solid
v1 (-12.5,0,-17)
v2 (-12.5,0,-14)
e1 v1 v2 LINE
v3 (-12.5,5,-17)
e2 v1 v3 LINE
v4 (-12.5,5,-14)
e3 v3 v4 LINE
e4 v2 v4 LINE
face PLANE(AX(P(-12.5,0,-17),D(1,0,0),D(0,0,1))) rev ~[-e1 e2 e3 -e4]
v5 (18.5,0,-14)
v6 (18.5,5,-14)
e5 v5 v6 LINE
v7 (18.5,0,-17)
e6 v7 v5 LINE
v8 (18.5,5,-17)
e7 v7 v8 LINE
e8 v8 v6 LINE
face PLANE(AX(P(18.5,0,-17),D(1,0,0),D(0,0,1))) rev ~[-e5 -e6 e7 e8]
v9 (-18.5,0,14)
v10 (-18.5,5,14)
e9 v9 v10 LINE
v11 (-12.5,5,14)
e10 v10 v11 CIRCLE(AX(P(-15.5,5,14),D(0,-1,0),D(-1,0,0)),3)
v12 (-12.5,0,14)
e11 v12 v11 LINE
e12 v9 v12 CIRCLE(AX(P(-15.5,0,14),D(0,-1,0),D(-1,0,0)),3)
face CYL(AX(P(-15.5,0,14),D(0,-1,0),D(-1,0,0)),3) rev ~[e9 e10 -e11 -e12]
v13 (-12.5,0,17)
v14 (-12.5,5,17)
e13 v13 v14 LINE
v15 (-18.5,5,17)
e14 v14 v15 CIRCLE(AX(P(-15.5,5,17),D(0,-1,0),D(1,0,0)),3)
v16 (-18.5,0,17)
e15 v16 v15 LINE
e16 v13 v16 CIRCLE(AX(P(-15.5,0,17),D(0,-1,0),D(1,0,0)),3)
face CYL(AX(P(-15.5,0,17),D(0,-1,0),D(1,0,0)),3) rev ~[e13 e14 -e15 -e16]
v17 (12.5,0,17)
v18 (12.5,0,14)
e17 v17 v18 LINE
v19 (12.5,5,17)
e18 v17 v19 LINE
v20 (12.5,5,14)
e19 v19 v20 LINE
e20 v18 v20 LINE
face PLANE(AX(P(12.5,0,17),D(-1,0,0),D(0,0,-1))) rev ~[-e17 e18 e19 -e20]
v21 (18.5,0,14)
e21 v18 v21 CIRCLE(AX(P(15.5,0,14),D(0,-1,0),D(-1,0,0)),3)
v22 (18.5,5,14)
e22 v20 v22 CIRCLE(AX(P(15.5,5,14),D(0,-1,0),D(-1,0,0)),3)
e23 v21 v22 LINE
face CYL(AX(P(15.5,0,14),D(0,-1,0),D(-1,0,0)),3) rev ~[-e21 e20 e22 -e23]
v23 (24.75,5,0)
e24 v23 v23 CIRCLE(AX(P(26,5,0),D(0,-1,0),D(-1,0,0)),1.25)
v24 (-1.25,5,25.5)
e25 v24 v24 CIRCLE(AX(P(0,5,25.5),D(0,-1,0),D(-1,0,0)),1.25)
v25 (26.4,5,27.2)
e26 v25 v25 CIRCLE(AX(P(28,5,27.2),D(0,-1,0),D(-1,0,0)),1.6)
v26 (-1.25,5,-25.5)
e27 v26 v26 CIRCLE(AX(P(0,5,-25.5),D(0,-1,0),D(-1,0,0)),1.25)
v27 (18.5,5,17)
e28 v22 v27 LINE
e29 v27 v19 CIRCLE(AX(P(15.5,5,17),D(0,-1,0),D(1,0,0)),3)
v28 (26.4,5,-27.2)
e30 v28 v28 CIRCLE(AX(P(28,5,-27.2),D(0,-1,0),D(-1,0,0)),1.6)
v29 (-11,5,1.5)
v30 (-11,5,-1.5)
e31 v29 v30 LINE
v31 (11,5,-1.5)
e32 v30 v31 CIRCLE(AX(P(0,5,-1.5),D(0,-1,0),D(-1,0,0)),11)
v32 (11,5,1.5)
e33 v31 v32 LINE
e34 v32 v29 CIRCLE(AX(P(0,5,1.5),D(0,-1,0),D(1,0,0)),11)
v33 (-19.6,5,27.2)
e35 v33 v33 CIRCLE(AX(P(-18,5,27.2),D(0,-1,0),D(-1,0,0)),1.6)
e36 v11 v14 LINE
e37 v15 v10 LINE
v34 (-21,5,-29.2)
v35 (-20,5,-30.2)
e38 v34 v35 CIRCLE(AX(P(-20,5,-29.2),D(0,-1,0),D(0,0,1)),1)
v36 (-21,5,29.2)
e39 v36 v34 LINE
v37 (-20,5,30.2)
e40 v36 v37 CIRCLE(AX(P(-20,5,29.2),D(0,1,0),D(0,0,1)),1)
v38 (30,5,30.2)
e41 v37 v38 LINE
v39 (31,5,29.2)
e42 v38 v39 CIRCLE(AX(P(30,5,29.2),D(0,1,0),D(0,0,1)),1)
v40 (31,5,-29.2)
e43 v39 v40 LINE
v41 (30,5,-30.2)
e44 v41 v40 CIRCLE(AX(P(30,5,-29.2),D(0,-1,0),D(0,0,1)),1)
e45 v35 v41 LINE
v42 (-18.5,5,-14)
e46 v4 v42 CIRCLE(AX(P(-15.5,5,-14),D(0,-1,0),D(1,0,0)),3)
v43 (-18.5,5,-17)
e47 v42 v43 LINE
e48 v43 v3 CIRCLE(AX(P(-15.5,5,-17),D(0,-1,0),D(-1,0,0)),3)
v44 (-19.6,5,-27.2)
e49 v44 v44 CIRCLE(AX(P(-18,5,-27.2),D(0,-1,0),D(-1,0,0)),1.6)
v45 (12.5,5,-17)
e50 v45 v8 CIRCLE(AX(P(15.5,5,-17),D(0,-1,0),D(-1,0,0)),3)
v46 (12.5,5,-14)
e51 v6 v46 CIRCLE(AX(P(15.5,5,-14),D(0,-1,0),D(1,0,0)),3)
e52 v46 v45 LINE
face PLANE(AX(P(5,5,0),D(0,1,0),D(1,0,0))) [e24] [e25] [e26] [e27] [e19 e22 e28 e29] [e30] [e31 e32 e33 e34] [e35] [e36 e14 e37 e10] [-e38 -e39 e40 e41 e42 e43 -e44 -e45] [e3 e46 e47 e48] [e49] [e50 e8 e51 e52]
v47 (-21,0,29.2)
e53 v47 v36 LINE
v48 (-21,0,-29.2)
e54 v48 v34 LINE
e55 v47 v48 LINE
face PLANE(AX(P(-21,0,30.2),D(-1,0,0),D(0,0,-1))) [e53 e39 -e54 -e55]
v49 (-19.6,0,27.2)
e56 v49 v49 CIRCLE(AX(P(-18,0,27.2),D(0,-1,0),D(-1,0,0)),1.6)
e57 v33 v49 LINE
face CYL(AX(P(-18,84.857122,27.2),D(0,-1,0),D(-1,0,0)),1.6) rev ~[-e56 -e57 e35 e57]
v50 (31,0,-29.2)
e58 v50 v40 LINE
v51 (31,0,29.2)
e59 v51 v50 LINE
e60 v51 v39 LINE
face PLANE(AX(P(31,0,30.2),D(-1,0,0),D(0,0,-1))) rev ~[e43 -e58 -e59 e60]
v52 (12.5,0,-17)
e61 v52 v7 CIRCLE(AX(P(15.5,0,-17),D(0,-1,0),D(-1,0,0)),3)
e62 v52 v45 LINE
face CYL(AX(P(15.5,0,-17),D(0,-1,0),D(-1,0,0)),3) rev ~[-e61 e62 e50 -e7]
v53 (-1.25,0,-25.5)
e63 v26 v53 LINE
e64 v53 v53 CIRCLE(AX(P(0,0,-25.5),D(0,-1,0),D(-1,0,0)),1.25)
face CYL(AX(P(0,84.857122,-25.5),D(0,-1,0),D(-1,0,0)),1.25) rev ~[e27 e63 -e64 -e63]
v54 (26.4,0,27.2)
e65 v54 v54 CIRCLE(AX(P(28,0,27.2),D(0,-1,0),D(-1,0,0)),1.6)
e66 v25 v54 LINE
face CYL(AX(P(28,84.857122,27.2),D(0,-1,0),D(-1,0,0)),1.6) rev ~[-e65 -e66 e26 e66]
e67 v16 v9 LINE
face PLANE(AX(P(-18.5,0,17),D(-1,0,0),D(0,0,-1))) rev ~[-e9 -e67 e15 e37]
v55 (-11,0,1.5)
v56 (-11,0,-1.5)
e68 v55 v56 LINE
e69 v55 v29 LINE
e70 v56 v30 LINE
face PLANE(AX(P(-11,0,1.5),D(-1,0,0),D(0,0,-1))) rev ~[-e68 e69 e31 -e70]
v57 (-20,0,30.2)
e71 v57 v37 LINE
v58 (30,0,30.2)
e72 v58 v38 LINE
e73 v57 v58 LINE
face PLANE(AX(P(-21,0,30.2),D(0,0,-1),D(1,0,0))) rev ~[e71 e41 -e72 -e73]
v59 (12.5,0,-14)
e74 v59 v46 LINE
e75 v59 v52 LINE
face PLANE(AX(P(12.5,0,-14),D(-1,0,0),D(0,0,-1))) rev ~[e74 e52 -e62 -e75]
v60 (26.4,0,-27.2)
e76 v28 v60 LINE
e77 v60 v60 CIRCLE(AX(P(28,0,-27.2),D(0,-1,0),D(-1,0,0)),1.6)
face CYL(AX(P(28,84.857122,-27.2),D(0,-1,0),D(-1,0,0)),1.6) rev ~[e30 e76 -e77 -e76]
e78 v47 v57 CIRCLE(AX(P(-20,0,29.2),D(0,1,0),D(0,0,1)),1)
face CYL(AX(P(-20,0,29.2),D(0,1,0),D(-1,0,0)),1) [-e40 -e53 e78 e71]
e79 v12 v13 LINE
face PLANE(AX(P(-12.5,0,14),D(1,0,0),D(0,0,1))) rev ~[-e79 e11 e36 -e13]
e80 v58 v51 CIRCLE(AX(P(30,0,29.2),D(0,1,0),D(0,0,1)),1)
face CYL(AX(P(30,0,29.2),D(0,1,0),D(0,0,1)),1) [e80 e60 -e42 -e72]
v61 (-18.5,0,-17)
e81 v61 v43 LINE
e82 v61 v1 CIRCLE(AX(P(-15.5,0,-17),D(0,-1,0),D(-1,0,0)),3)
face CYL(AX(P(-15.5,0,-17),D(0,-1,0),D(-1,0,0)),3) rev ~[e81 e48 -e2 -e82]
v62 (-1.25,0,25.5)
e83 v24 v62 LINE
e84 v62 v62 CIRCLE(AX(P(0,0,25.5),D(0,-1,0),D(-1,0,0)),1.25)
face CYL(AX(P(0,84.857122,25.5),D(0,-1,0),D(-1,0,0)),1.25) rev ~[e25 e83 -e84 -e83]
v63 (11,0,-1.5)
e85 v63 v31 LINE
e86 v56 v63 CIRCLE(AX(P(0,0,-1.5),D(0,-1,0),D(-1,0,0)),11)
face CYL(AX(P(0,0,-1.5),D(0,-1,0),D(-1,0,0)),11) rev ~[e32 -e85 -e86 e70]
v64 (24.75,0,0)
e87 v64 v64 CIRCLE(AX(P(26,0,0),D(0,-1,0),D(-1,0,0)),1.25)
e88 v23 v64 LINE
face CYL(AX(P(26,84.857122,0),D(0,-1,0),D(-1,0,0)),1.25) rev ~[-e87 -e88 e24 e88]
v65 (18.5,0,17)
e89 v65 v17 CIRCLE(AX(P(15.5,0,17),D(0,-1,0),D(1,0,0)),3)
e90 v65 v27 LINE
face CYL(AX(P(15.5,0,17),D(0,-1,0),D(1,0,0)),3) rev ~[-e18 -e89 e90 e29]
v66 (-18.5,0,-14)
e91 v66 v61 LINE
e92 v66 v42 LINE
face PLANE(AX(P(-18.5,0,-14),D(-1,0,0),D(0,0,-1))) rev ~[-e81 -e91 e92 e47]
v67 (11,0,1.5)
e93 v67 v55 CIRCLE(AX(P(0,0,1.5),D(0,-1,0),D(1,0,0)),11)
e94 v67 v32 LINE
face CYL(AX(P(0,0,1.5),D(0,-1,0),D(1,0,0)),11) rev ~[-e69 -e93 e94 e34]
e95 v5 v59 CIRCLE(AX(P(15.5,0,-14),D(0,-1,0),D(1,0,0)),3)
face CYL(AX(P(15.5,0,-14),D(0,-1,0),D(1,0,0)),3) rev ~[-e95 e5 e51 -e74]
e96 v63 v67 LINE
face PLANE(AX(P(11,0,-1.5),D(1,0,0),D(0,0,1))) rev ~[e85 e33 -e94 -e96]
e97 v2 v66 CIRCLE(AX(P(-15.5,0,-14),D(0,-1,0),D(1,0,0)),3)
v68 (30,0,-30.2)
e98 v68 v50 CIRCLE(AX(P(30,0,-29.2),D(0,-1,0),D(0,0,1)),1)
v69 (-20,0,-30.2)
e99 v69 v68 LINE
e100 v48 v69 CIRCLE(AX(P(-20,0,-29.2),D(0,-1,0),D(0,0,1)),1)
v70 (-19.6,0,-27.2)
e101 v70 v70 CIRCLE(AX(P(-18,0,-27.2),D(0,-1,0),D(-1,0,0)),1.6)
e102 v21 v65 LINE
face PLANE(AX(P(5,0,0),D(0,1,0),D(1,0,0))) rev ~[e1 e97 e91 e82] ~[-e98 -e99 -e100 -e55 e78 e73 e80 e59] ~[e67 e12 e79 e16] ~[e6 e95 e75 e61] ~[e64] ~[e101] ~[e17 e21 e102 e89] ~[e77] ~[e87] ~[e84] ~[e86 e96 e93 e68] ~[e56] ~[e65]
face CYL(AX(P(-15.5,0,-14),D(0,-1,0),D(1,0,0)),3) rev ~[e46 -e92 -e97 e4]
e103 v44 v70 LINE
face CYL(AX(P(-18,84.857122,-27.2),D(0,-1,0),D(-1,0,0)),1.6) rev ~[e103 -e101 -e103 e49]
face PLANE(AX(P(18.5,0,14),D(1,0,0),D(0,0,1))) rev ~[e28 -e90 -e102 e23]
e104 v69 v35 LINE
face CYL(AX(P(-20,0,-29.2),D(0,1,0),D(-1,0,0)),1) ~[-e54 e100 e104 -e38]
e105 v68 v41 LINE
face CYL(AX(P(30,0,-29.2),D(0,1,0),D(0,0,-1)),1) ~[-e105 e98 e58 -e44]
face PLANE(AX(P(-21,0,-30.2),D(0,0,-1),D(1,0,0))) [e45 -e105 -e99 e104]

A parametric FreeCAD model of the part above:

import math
import FreeCAD as App
import Part
import Sketcher
from FreeCAD import Vector
Q = App.Units.Quantity


def edges_at(feature, points):
    """Names of the edges that pass closest to the given points."""
    edges = feature.Shape.Edges
    near = lambda p: min(range(len(edges)), key=lambda i: edges[i].distToShape(Part.Vertex(*p))[0])
    return sorted({f"Edge{near(p) + 1}" for p in points})


def add_polygon(sketch, points):
    """Adds a closed chain of lines whose ends are joined by coincident constraints."""
    first, n = sketch.GeometryCount, len(points)
    for a, b in zip(points, points[1:] + points[:1]):
        sketch.addGeometry(Part.LineSegment(App.Vector(*a, 0), App.Vector(*b, 0)), False)
    for i in range(n):
        sketch.addConstraint(Sketcher.Constraint("Coincident", first + i, 2, first + (i + 1) % n, 1))

doc = App.newDocument("Part")
body = doc.addObject("PartDesign::Body", "Body")

sketch1 = body.newObject("Sketcher::SketchObject", "Sketch")
sketch1.AttachmentSupport = (doc.getObject("XZ_Plane"), [""])
sketch1.MapMode = "FlatFace"
add_polygon(sketch1, [(-21, -30.2), (-21, 30.2), (31, 30.2), (31, -30.2)])
sketch1.addGeometry(Part.ArcOfCircle(Part.Circle(Vector(-15.5, 17, 0), Vector(0, 0, 1), 3), math.radians(0), math.radians(180)), False)
sketch1.addGeometry(Part.LineSegment(Vector(-18.5, 17, 0), Vector(-18.5, 14, 0)), False)
sketch1.addGeometry(Part.ArcOfCircle(Part.Circle(Vector(-15.5, 14, 0), Vector(0, 0, 1), 3), math.radians(180), math.radians(360)), False)
sketch1.addGeometry(Part.LineSegment(Vector(-12.5, 14, 0), Vector(-12.5, 17, 0)), False)
sketch1.addGeometry(Part.ArcOfCircle(Part.Circle(Vector(15.5, 17, 0), Vector(0, 0, 1), 3), math.radians(0), math.radians(180)), False)
sketch1.addGeometry(Part.LineSegment(Vector(12.5, 17, 0), Vector(12.5, 14, 0)), False)
sketch1.addGeometry(Part.ArcOfCircle(Part.Circle(Vector(15.5, 14, 0), Vector(0, 0, 1), 3), math.radians(180), math.radians(360)), False)
sketch1.addGeometry(Part.LineSegment(Vector(18.5, 14, 0), Vector(18.5, 17, 0)), False)
sketch1.addGeometry(Part.ArcOfCircle(Part.Circle(Vector(-15.5, -14, 0), Vector(0, 0, 1), 3), math.radians(0), math.radians(180)), False)
sketch1.addGeometry(Part.LineSegment(Vector(-18.5, -14, 0), Vector(-18.5, -17, 0)), False)
sketch1.addGeometry(Part.ArcOfCircle(Part.Circle(Vector(-15.5, -17, 0), Vector(0, 0, 1), 3), math.radians(180), math.radians(360)), False)
sketch1.addGeometry(Part.LineSegment(Vector(-12.5, -17, 0), Vector(-12.5, -14, 0)), False)
sketch1.addGeometry(Part.ArcOfCircle(Part.Circle(Vector(0, 1.5, 0), Vector(0, 0, 1), 11), math.radians(0), math.radians(180)), False)
sketch1.addGeometry(Part.LineSegment(Vector(-11, 1.5, 0), Vector(-11, -1.5, 0)), False)
sketch1.addGeometry(Part.ArcOfCircle(Part.Circle(Vector(0, -1.5, 0), Vector(0, 0, 1), 11), math.radians(180), math.radians(360)), False)
sketch1.addGeometry(Part.LineSegment(Vector(11, -1.5, 0), Vector(11, 1.5, 0)), False)
sketch1.addGeometry(Part.ArcOfCircle(Part.Circle(Vector(15.5, -14, 0), Vector(0, 0, 1), 3), math.radians(0), math.radians(180)), False)
sketch1.addGeometry(Part.LineSegment(Vector(12.5, -14, 0), Vector(12.5, -17, 0)), False)
sketch1.addGeometry(Part.ArcOfCircle(Part.Circle(Vector(15.5, -17, 0), Vector(0, 0, 1), 3), math.radians(180), math.radians(360)), False)
sketch1.addGeometry(Part.LineSegment(Vector(18.5, -17, 0), Vector(18.5, -14, 0)), False)
sketch1.addConstraint(Sketcher.Constraint("Tangent", 4, 2, 5, 1))
sketch1.addConstraint(Sketcher.Constraint("Tangent", 5, 2, 6, 1))
sketch1.addConstraint(Sketcher.Constraint("Tangent", 6, 2, 7, 1))
sketch1.addConstraint(Sketcher.Constraint("Tangent", 7, 2, 4, 1))
sketch1.addConstraint(Sketcher.Constraint("Tangent", 8, 2, 9, 1))
sketch1.addConstraint(Sketcher.Constraint("Tangent", 9, 2, 10, 1))
sketch1.addConstraint(Sketcher.Constraint("Tangent", 10, 2, 11, 1))
sketch1.addConstraint(Sketcher.Constraint("Tangent", 11, 2, 8, 1))
sketch1.addConstraint(Sketcher.Constraint("Tangent", 12, 2, 13, 1))
sketch1.addConstraint(Sketcher.Constraint("Tangent", 13, 2, 14, 1))
sketch1.addConstraint(Sketcher.Constraint("Tangent", 14, 2, 15, 1))
sketch1.addConstraint(Sketcher.Constraint("Tangent", 15, 2, 12, 1))
sketch1.addConstraint(Sketcher.Constraint("Tangent", 16, 2, 17, 1))
sketch1.addConstraint(Sketcher.Constraint("Tangent", 17, 2, 18, 1))
sketch1.addConstraint(Sketcher.Constraint("Tangent", 18, 2, 19, 1))
sketch1.addConstraint(Sketcher.Constraint("Tangent", 19, 2, 16, 1))
sketch1.addConstraint(Sketcher.Constraint("Tangent", 20, 2, 21, 1))
sketch1.addConstraint(Sketcher.Constraint("Tangent", 21, 2, 22, 1))
sketch1.addConstraint(Sketcher.Constraint("Tangent", 22, 2, 23, 1))
sketch1.addConstraint(Sketcher.Constraint("Tangent", 23, 2, 20, 1))
sketch1.addConstraint(Sketcher.Constraint("Vertical", 0))
sketch1.addConstraint(Sketcher.Constraint("Horizontal", 1))
sketch1.addConstraint(Sketcher.Constraint("Vertical", 2))
sketch1.addConstraint(Sketcher.Constraint("Horizontal", 3))
sketch1.addConstraint(Sketcher.Constraint("Vertical", 5))
sketch1.addConstraint(Sketcher.Constraint("Vertical", 7))
sketch1.addConstraint(Sketcher.Constraint("Vertical", 9))
sketch1.addConstraint(Sketcher.Constraint("Vertical", 11))
sketch1.addConstraint(Sketcher.Constraint("Vertical", 13))
sketch1.addConstraint(Sketcher.Constraint("Vertical", 15))
sketch1.addConstraint(Sketcher.Constraint("Vertical", 17))
sketch1.addConstraint(Sketcher.Constraint("Vertical", 19))
sketch1.addConstraint(Sketcher.Constraint("Vertical", 21))
sketch1.addConstraint(Sketcher.Constraint("Vertical", 23))
sketch1.addConstraint(Sketcher.Constraint("Equal", 6, 8))
sketch1.addConstraint(Sketcher.Constraint("Equal", 10, 12))
sketch1.addConstraint(Sketcher.Constraint("Equal", 14, 20))
sketch1.addConstraint(Sketcher.Constraint("Symmetric", 10, 3, 12, 3, -1, 1))
sketch1.addConstraint(Sketcher.Constraint("Symmetric", 16, 3, 18, 3, -1, 1))
sketch1.addConstraint(Sketcher.Constraint("Symmetric", 6, 3, 20, 3, -1, 1))
sketch1.addConstraint(Sketcher.Constraint("Symmetric", 4, 3, 8, 3, -2))
sketch1.addConstraint(Sketcher.Constraint("Horizontal", 6, 3, 10, 3))
sketch1.addConstraint(Sketcher.Constraint("Horizontal", 14, 3, 22, 3))
sketch1.addConstraint(Sketcher.Constraint("Equal", 11, 13))
sketch1.addConstraint(Sketcher.Constraint("Equal", 15, 17))
sketch1.addConstraint(Sketcher.Constraint("Radius", 4, Q("3 mm")))
sketch1.addConstraint(Sketcher.Constraint("Radius", 16, Q("11 mm")))
sketch1.addConstraint(Sketcher.Constraint("DistanceX", 1, 1, 1, 2, Q("52 mm")))
sketch1.addConstraint(Sketcher.Constraint("DistanceY", 5, 2, 5, 1, Q("3 mm")))
sketch1.addConstraint(Sketcher.Constraint("DistanceY", 0, 1, 0, 2, Q("60.4 mm")))
sketch1.addConstraint(Sketcher.Constraint("DistanceY", -1, 1, 4, 3, Q("17 mm")))
sketch1.addConstraint(Sketcher.Constraint("DistanceX", 0, 2, -1, 1, Q("21 mm")))
sketch1.addConstraint(Sketcher.Constraint("DistanceX", 4, 3, 8, 3, Q("31 mm")))
sketch1.addConstraint(Sketcher.Constraint("DistanceY", -1, 1, 0, 2, Q("30.2 mm")))
pad1 = body.newObject("PartDesign::Pad", "Pad")
pad1.Profile = sketch1
pad1.Length = 5
pad1.Reversed = True

sketch2 = body.newObject("Sketcher::SketchObject", "Sketch001")
sketch2.AttachmentSupport = (doc.getObject("XZ_Plane"), [""])
sketch2.MapMode = "FlatFace"
sketch2.AttachmentOffset = App.Placement(Vector(0, 0, -5), App.Rotation())
sketch2.addGeometry(Part.Circle(Vector(-18, 27.2, 0), Vector(0, 0, 1), 1.6), False)
sketch2.addGeometry(Part.Circle(Vector(28, 27.2, 0), Vector(0, 0, 1), 1.6), False)
sketch2.addGeometry(Part.Circle(Vector(28, -27.2, 0), Vector(0, 0, 1), 1.6), False)
sketch2.addGeometry(Part.Circle(Vector(-18, -27.2, 0), Vector(0, 0, 1), 1.6), False)
sketch2.addConstraint(Sketcher.Constraint("Equal", 0, 1))
sketch2.addConstraint(Sketcher.Constraint("Equal", 1, 2))
sketch2.addConstraint(Sketcher.Constraint("Equal", 2, 3))
sketch2.addConstraint(Sketcher.Constraint("Symmetric", 1, 3, 2, 3, -1))
sketch2.addConstraint(Sketcher.Constraint("Symmetric", 0, 3, 3, 3, -1))
sketch2.addConstraint(Sketcher.Constraint("Horizontal", 0, 3, 1, 3))
sketch2.addConstraint(Sketcher.Constraint("Diameter", 0, Q("3.2 mm")))
sketch2.addConstraint(Sketcher.Constraint("DistanceX", 0, 3, -1, 1, Q("18 mm")))
sketch2.addConstraint(Sketcher.Constraint("DistanceX", -1, 1, 1, 3, Q("28 mm")))
sketch2.addConstraint(Sketcher.Constraint("DistanceY", -1, 1, 0, 3, Q("27.2 mm")))
doc.recompute()
hole = body.newObject("PartDesign::Hole", "Hole")
hole.Profile = sketch2
hole.ThreadType = "None"
hole.Diameter = 3.2
hole.DepthType = "ThroughAll"
hole.Reversed = True

sketch3 = body.newObject("Sketcher::SketchObject", "Sketch002")
sketch3.AttachmentSupport = (doc.getObject("XZ_Plane"), [""])
sketch3.MapMode = "FlatFace"
sketch3.AttachmentOffset = App.Placement(Vector(0, 0, -5), App.Rotation())
sketch3.addGeometry(Part.Circle(Vector(26, 0, 0), Vector(0, 0, 1), 1.2), False)
sketch3.addGeometry(Part.Circle(Vector(0, -25.5, 0), Vector(0, 0, 1), 1.2), False)
sketch3.addGeometry(Part.Circle(Vector(0, 25.5, 0), Vector(0, 0, 1), 1.2), False)
sketch3.addConstraint(Sketcher.Constraint("Equal", 0, 1))
sketch3.addConstraint(Sketcher.Constraint("Equal", 1, 2))
sketch3.addConstraint(Sketcher.Constraint("Symmetric", 1, 3, 2, 3, -1, 1))
sketch3.addConstraint(Sketcher.Constraint("PointOnObject", 0, 3, -1))
sketch3.addConstraint(Sketcher.Constraint("PointOnObject", 1, 3, -2))
sketch3.addConstraint(Sketcher.Constraint("Diameter", 0, Q("2.5 mm")))
sketch3.addConstraint(Sketcher.Constraint("DistanceX", -1, 1, 0, 3, Q("26 mm")))
sketch3.addConstraint(Sketcher.Constraint("DistanceY", 1, 3, 2, 3, Q("51 mm")))
doc.recompute()
hole2 = body.newObject("PartDesign::Hole", "Hole001")
hole2.Profile = sketch3
hole2.ThreadType = "None"
hole2.Diameter = 2.5
hole2.DepthType = "ThroughAll"
hole2.Reversed = True
doc.recompute()

fillet = body.newObject("PartDesign::Fillet", "Fillet")
fillet.Base = (hole2, edges_at(hole2, [
    (-21, 2.5, -30.2),
    (31, 2.5, -30.2),
    (31, 2.5, 30.2),
    (-21, 2.5, 30.2),
]))
fillet.Radius = 1

doc.recompute()
